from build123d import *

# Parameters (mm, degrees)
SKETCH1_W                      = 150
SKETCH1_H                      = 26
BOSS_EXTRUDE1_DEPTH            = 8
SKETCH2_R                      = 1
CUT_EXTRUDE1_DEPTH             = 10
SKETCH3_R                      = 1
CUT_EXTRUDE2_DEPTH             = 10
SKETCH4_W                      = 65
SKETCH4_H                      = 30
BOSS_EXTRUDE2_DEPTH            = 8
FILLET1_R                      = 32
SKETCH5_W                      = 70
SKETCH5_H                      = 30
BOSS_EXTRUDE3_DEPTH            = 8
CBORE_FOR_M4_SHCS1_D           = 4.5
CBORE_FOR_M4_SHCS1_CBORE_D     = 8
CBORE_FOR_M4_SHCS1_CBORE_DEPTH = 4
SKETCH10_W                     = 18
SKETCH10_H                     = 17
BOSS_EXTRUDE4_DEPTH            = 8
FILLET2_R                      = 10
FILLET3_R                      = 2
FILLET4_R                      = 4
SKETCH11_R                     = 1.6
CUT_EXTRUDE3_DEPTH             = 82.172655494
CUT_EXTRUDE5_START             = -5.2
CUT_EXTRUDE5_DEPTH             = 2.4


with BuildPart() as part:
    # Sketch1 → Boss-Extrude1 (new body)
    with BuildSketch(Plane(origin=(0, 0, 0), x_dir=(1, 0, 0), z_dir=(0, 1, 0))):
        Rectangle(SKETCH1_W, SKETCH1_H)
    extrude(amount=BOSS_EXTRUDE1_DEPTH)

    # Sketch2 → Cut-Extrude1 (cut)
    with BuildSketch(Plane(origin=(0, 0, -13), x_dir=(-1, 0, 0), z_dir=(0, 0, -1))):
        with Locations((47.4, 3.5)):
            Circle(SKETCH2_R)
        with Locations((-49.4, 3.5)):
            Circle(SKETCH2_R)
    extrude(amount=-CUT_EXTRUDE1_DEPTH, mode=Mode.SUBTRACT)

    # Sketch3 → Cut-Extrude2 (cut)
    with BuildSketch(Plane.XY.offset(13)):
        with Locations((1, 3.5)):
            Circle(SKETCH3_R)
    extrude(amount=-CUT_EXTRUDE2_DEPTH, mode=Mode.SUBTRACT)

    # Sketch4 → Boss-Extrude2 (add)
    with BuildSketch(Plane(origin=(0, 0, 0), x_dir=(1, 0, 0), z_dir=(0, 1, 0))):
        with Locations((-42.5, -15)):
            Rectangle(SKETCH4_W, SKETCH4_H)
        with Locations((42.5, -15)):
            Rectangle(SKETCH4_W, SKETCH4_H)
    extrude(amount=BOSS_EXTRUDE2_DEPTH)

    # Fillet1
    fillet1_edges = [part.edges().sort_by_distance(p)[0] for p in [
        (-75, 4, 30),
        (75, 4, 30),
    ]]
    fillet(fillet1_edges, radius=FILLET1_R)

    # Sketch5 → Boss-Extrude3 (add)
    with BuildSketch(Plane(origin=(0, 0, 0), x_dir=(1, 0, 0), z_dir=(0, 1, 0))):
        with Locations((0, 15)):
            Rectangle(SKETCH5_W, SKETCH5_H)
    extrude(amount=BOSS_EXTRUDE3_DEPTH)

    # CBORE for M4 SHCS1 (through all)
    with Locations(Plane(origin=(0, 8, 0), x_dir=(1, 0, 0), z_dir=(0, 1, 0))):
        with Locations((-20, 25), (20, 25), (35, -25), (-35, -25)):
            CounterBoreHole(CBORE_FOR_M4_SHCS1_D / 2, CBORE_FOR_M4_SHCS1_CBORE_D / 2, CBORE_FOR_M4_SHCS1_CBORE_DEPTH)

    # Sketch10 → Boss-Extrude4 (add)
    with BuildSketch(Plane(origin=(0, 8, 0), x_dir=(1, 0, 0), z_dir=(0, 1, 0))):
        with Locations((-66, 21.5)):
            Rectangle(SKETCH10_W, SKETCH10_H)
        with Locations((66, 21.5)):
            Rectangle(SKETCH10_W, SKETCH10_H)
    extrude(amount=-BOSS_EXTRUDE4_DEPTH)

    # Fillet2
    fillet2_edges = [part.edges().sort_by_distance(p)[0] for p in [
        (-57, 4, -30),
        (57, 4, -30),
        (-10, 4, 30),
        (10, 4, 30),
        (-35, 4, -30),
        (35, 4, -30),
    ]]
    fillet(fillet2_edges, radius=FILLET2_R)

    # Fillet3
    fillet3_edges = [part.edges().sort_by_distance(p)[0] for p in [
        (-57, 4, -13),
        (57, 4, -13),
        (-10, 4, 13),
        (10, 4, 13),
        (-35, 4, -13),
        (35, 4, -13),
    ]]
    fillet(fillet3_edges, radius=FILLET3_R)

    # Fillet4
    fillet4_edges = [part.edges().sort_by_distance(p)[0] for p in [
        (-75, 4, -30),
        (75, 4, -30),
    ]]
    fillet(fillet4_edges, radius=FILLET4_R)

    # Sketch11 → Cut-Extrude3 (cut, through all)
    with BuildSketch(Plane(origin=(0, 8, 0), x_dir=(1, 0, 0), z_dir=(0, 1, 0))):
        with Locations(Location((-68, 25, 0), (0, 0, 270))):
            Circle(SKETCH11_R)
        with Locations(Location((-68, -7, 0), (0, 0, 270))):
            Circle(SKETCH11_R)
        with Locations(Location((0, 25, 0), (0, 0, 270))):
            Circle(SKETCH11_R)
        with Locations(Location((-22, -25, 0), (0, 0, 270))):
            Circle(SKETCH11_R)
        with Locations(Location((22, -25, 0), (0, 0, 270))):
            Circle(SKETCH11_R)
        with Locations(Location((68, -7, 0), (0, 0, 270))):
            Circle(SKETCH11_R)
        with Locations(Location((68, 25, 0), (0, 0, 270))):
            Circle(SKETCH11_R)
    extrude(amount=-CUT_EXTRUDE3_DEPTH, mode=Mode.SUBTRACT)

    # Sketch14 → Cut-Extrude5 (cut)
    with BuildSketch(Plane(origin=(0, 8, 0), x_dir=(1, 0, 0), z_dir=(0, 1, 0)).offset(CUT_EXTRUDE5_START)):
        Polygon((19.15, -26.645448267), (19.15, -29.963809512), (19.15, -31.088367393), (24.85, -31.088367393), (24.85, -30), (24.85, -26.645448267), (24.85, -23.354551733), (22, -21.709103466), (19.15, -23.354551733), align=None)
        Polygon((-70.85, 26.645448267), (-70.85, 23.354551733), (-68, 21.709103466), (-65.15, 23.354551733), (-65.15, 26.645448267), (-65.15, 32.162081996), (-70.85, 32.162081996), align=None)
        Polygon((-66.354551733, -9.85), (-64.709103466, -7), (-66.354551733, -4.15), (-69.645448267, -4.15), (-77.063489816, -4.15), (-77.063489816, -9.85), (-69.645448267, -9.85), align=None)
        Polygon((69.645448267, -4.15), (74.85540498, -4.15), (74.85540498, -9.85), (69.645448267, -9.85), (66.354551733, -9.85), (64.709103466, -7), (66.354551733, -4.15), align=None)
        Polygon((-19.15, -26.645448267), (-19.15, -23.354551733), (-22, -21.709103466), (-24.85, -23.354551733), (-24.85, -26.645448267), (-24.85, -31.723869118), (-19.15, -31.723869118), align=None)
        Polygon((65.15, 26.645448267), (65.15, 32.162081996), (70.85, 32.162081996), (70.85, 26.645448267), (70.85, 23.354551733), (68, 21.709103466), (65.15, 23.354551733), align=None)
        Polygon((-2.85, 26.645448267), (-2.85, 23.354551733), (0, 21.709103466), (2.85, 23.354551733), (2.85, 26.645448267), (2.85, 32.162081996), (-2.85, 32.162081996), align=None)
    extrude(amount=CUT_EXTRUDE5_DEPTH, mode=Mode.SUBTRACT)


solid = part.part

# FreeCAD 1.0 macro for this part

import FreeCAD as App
import Part
import Sketcher
Q = App.Units.Quantity


def edges_at(feature, points):
    """Names of the edges that pass closest to the given points."""
    edges = feature.Shape.Edges
    near = lambda p: min(range(len(edges)), key=lambda i: edges[i].distToShape(Part.Vertex(*p))[0])
    return sorted({f"Edge{near(p) + 1}" for p in points})

doc = App.newDocument("Part")
body = doc.addObject("PartDesign::Body", "Body")

# Sketch on XZ plane
sketch1 = body.newObject("Sketcher::SketchObject", "Sketch")
sketch1.AttachmentSupport = (doc.getObject("XZ_Plane"), [""])
sketch1.MapMode = "FlatFace"
sketch1.addGeometry([
    Part.LineSegment(App.Vector(-75, -13, 0), App.Vector(-75, 13, 0)),
    Part.LineSegment(App.Vector(-75, 13, 0), App.Vector(75, 13, 0)),
    Part.LineSegment(App.Vector(75, 13, 0), App.Vector(75, -13, 0)),
    Part.LineSegment(App.Vector(75, -13, 0), App.Vector(-75, -13, 0)),
], False)
sketch1.addConstraint([
    Sketcher.Constraint("Coincident", 0, 2, 1, 1),
    Sketcher.Constraint("Coincident", 1, 2, 2, 1),
    Sketcher.Constraint("Coincident", 2, 2, 3, 1),
    Sketcher.Constraint("Coincident", 3, 2, 0, 1),
    Sketcher.Constraint("Vertical", 0),
    Sketcher.Constraint("Horizontal", 1),
    Sketcher.Constraint("Vertical", 2),
    Sketcher.Constraint("Horizontal", 3),
    Sketcher.Constraint("Symmetric", 0, 2, 2, 2, -1, 1),
    Sketcher.Constraint("DistanceX", 1, 1, 1, 2, Q("150 mm")),
    Sketcher.Constraint("DistanceY", 0, 1, 0, 2, Q("26 mm")),
])
pad1 = body.newObject("PartDesign::Pad", "Pad")
pad1.Profile = sketch1
pad1.Length = 8
pad1.Reversed = True

# Sketch on XY plane
sketch2 = body.newObject("Sketcher::SketchObject", "Sketch001")
sketch2.AttachmentSupport = (doc.getObject("XY_Plane"), [""])
sketch2.MapMode = "FlatFace"
sketch2.AttachmentOffset = App.Placement(App.Vector(0, 0, -13), App.Rotation())
sketch2.addGeometry([
    Part.Circle(App.Vector(-47.4, 3.5, 0), App.Vector(0, 0, 1), 1),
    Part.Circle(App.Vector(49.4, 3.5, 0), App.Vector(0, 0, 1), 1),
], False)
sketch2.addConstraint([
    Sketcher.Constraint("Equal", 0, 1),
    Sketcher.Constraint("Horizontal", 0, 3, 1, 3),
    Sketcher.Constraint("Diameter", 0, Q("2 mm")),
    Sketcher.Constraint("DistanceX", 0, 3, -1, 1, Q("47.4 mm")),
    Sketcher.Constraint("DistanceY", -1, 1, 0, 3, Q("3.5 mm")),
    Sketcher.Constraint("DistanceX", -1, 1, 1, 3, Q("49.4 mm")),
])
pocket1 = body.newObject("PartDesign::Pocket", "Pocket")
pocket1.Profile = sketch2
pocket1.Length = 10
pocket1.Reversed = True

# Sketch on XY plane
sketch3 = body.newObject("Sketcher::SketchObject", "Sketch002")
sketch3.AttachmentSupport = (doc.getObject("XY_Plane"), [""])
sketch3.MapMode = "FlatFace"
sketch3.AttachmentOffset = App.Placement(App.Vector(0, 0, 13), App.Rotation())
sketch3.addGeometry(Part.Circle(App.Vector(1, 3.5, 0), App.Vector(0, 0, 1), 1), False)
sketch3.addConstraint([
    Sketcher.Constraint("Diameter", 0, Q("2 mm")),
    Sketcher.Constraint("DistanceX", -1, 1, 0, 3, Q("1 mm")),
    Sketcher.Constraint("DistanceY", -1, 1, 0, 3, Q("3.5 mm")),
])
pocket2 = body.newObject("PartDesign::Pocket", "Pocket001")
pocket2.Profile = sketch3
pocket2.Length = 10

# Sketch on XZ plane
sketch4 = body.newObject("Sketcher::SketchObject", "Sketch003")
sketch4.AttachmentSupport = (doc.getObject("XZ_Plane"), [""])
sketch4.MapMode = "FlatFace"
sketch4.addGeometry([
    Part.LineSegment(App.Vector(-75, 0, 0), App.Vector(-75, 30, 0)),  # 0
    Part.LineSegment(App.Vector(-75, 30, 0), App.Vector(-10, 30, 0)),  # 1
    Part.LineSegment(App.Vector(-10, 30, 0), App.Vector(-10, 0, 0)),  # 2
    Part.LineSegment(App.Vector(-10, 0, 0), App.Vector(-75, 0, 0)),  # 3
    Part.LineSegment(App.Vector(10, 0, 0), App.Vector(10, 30, 0)),  # 4
    Part.LineSegment(App.Vector(10, 30, 0), App.Vector(75, 30, 0)),  # 5
    Part.LineSegment(App.Vector(75, 30, 0), App.Vector(75, 0, 0)),  # 6
    Part.LineSegment(App.Vector(75, 0, 0), App.Vector(10, 0, 0)),  # 7
], False)
sketch4.addConstraint([
    Sketcher.Constraint("Coincident", 0, 2, 1, 1),
    Sketcher.Constraint("Coincident", 1, 2, 2, 1),
    Sketcher.Constraint("Coincident", 2, 2, 3, 1),
    Sketcher.Constraint("Coincident", 3, 2, 0, 1),
    Sketcher.Constraint("Coincident", 4, 2, 5, 1),
    Sketcher.Constraint("Coincident", 5, 2, 6, 1),
    Sketcher.Constraint("Coincident", 6, 2, 7, 1),
    Sketcher.Constraint("Coincident", 7, 2, 4, 1),
    Sketcher.Constraint("Vertical", 0),
    Sketcher.Constraint("Horizontal", 1),
    Sketcher.Constraint("Vertical", 2),
    Sketcher.Constraint("Horizontal", 3),
    Sketcher.Constraint("Vertical", 4),
    Sketcher.Constraint("Horizontal", 5),
    Sketcher.Constraint("Vertical", 6),
    Sketcher.Constraint("Horizontal", 7),
    Sketcher.Constraint("Symmetric", 3, 2, 6, 2, -1, 1),
    Sketcher.Constraint("Symmetric", 1, 2, 4, 2, -2),
    Sketcher.Constraint("PointOnObject", 2, 2, -1),
    Sketcher.Constraint("DistanceX", 1, 1, 1, 2, Q("65 mm")),
    Sketcher.Constraint("DistanceY", 0, 1, 0, 2, Q("30 mm")),
    Sketcher.Constraint("DistanceX", 0, 2, -1, 1, Q("75 mm")),
])
pad2 = body.newObject("PartDesign::Pad", "Pad001")
pad2.Profile = sketch4
pad2.Length = 8
pad2.Reversed = True
doc.recompute()

fillet = body.newObject("PartDesign::Fillet", "Fillet")
fillet.Base = (pad2, edges_at(pad2, [(-75, 4, 30), (75, 4, 30)]))
fillet.Radius = 32

# Sketch on XZ plane
sketch5 = body.newObject("Sketcher::SketchObject", "Sketch004")
sketch5.AttachmentSupport = (doc.getObject("XZ_Plane"), [""])
sketch5.MapMode = "FlatFace"
sketch5.addGeometry([
    Part.LineSegment(App.Vector(-35, -30, 0), App.Vector(-35, 0, 0)),
    Part.LineSegment(App.Vector(-35, 0, 0), App.Vector(35, 0, 0)),
    Part.LineSegment(App.Vector(35, 0, 0), App.Vector(35, -30, 0)),
    Part.LineSegment(App.Vector(35, -30, 0), App.Vector(-35, -30, 0)),
], False)
sketch5.addConstraint([
    Sketcher.Constraint("Coincident", 0, 2, 1, 1),
    Sketcher.Constraint("Coincident", 1, 2, 2, 1),
    Sketcher.Constraint("Coincident", 2, 2, 3, 1),
    Sketcher.Constraint("Coincident", 3, 2, 0, 1),
    Sketcher.Constraint("Vertical", 0),
    Sketcher.Constraint("Horizontal", 1),
    Sketcher.Constraint("Vertical", 2),
    Sketcher.Constraint("Horizontal", 3),
    Sketcher.Constraint("Symmetric", 0, 2, 1, 2, -1, 1),
    Sketcher.Constraint("DistanceX", 1, 1, 1, 2, Q("70 mm")),
    Sketcher.Constraint("DistanceY", 0, 1, 0, 2, Q("30 mm")),
])
pad3 = body.newObject("PartDesign::Pad", "Pad002")
pad3.Profile = sketch5
pad3.Length = 8
pad3.Reversed = True

# Sketch on XZ plane
sketch6 = body.newObject("Sketcher::SketchObject", "Sketch005")
sketch6.AttachmentSupport = (doc.getObject("XZ_Plane"), [""])
sketch6.MapMode = "FlatFace"
sketch6.AttachmentOffset = App.Placement(App.Vector(0, 0, -8), App.Rotation())
sketch6.addGeometry([
    Part.Circle(App.Vector(-20, -25, 0), App.Vector(0, 0, 1), 2.25),
    Part.Circle(App.Vector(20, -25, 0), App.Vector(0, 0, 1), 2.25),
    Part.Circle(App.Vector(35, 25, 0), App.Vector(0, 0, 1), 2.25),
    Part.Circle(App.Vector(-35, 25, 0), App.Vector(0, 0, 1), 2.25),
], False)
sketch6.addConstraint([
    Sketcher.Constraint("Equal", 0, 1),
    Sketcher.Constraint("Equal", 1, 2),
    Sketcher.Constraint("Equal", 2, 3),
    Sketcher.Constraint("Symmetric", 0, 3, 1, 3, -2),
    Sketcher.Constraint("Symmetric", 2, 3, 3, 3, -2),
    Sketcher.Constraint("Diameter", 0, Q("4.5 mm")),
    Sketcher.Constraint("DistanceX", 0, 3, -1, 1, Q("20 mm")),
    Sketcher.Constraint("DistanceY", 0, 3, -1, 1, Q("25 mm")),
    Sketcher.Constraint("DistanceX", -1, 1, 2, 3, Q("35 mm")),
    Sketcher.Constraint("DistanceY", -1, 1, 2, 3, Q("25 mm")),
])
doc.recompute()
hole = body.newObject("PartDesign::Hole", "Hole")
hole.Profile = sketch6
hole.ThreadType = "None"
hole.Diameter = 4.5
hole.DepthType = "ThroughAll"
hole.HoleCutType = "Counterbore"
hole.HoleCutDiameter = 8
hole.HoleCutDepth = 4
hole.Reversed = True

# Sketch on XZ plane
sketch7 = body.newObject("Sketcher::SketchObject", "Sketch006")
sketch7.AttachmentSupport = (doc.getObject("XZ_Plane"), [""])
sketch7.MapMode = "FlatFace"
sketch7.AttachmentOffset = App.Placement(App.Vector(0, 0, -8), App.Rotation())
sketch7.addGeometry([
    Part.LineSegment(App.Vector(-75, -30, 0), App.Vector(-75, -13, 0)),  # 0
    Part.LineSegment(App.Vector(-75, -13, 0), App.Vector(-57, -13, 0)),  # 1
    Part.LineSegment(App.Vector(-57, -13, 0), App.Vector(-57, -30, 0)),  # 2
    Part.LineSegment(App.Vector(-57, -30, 0), App.Vector(-75, -30, 0)),  # 3
    Part.LineSegment(App.Vector(57, -30, 0), App.Vector(57, -13, 0)),  # 4
    Part.LineSegment(App.Vector(57, -13, 0), App.Vector(75, -13, 0)),  # 5
    Part.LineSegment(App.Vector(75, -13, 0), App.Vector(75, -30, 0)),  # 6
    Part.LineSegment(App.Vector(75, -30, 0), App.Vector(57, -30, 0)),  # 7
], False)
sketch7.addConstraint([
    Sketcher.Constraint("Coincident", 0, 2, 1, 1),
    Sketcher.Constraint("Coincident", 1, 2, 2, 1),
    Sketcher.Constraint("Coincident", 2, 2, 3, 1),
    Sketcher.Constraint("Coincident", 3, 2, 0, 1),
    Sketcher.Constraint("Coincident", 4, 2, 5, 1),
    Sketcher.Constraint("Coincident", 5, 2, 6, 1),
    Sketcher.Constraint("Coincident", 6, 2, 7, 1),
    Sketcher.Constraint("Coincident", 7, 2, 4, 1),
    Sketcher.Constraint("Vertical", 0),
    Sketcher.Constraint("Horizontal", 1),
    Sketcher.Constraint("Vertical", 2),
    Sketcher.Constraint("Horizontal", 3),
    Sketcher.Constraint("Vertical", 4),
    Sketcher.Constraint("Horizontal", 5),
    Sketcher.Constraint("Vertical", 6),
    Sketcher.Constraint("Horizontal", 7),
    Sketcher.Constraint("Symmetric", 1, 2, 4, 2, -2),
    Sketcher.Constraint("Symmetric", 3, 2, 6, 2, -2),
    Sketcher.Constraint("DistanceX", 1, 1, 1, 2, Q("18 mm")),
    Sketcher.Constraint("DistanceY", 0, 1, 0, 2, Q("17 mm")),
    Sketcher.Constraint("DistanceX", 0, 2, -1, 1, Q("75 mm")),
    Sketcher.Constraint("DistanceY", 0, 2, -1, 1, Q("13 mm")),
])
pad4 = body.newObject("PartDesign::Pad", "Pad003")
pad4.Profile = sketch7
pad4.Length = 8
doc.recompute()

fillet2 = body.newObject("PartDesign::Fillet", "Fillet001")
fillet2.Base = (pad4, edges_at(pad4, [
    (-57, 4, -30),
    (57, 4, -30),
    (-10, 4, 30),
    (10, 4, 30),
    (-35, 4, -30),
    (35, 4, -30),
]))
fillet2.Radius = 10
doc.recompute()

fillet3 = body.newObject("PartDesign::Fillet", "Fillet002")
fillet3.Base = (fillet2, edges_at(fillet2, [
    (-57, 4, -13),
    (57, 4, -13),
    (-10, 4, 13),
    (10, 4, 13),
    (-35, 4, -13),
    (35, 4, -13),
]))
fillet3.Radius = 2
doc.recompute()

fillet4 = body.newObject("PartDesign::Fillet", "Fillet003")
fillet4.Base = (fillet3, edges_at(fillet3, [(-75, 4, -30), (75, 4, -30)]))
fillet4.Radius = 4

# Sketch on XZ plane
sketch8 = body.newObject("Sketcher::SketchObject", "Sketch007")
sketch8.AttachmentSupport = (doc.getObject("XZ_Plane"), [""])
sketch8.MapMode = "FlatFace"
sketch8.AttachmentOffset = App.Placement(App.Vector(0, 0, -8), App.Rotation())
sketch8.addGeometry([
    Part.Circle(App.Vector(-68, -25, 0), App.Vector(0, 0, 1), 1.6),  # 0
    Part.Circle(App.Vector(-68, 7, 0), App.Vector(0, 0, 1), 1.6),  # 1
    Part.Circle(App.Vector(0, -25, 0), App.Vector(0, 0, 1), 1.6),  # 2
    Part.Circle(App.Vector(-22, 25, 0), App.Vector(0, 0, 1), 1.6),  # 3
    Part.Circle(App.Vector(22, 25, 0), App.Vector(0, 0, 1), 1.6),  # 4
    Part.Circle(App.Vector(68, 7, 0), App.Vector(0, 0, 1), 1.6),  # 5
    Part.Circle(App.Vector(68, -25, 0), App.Vector(0, 0, 1), 1.6),  # 6
], False)
sketch8.addConstraint([
    Sketcher.Constraint("Equal", 0, 1),
    Sketcher.Constraint("Equal", 1, 2),
    Sketcher.Constraint("Equal", 2, 3),
    Sketcher.Constraint("Equal", 3, 4),
    Sketcher.Constraint("Equal", 4, 5),
    Sketcher.Constraint("Equal", 5, 6),
    Sketcher.Constraint("Symmetric", 3, 3, 4, 3, -2),
    Sketcher.Constraint("Symmetric", 1, 3, 5, 3, -2),
    Sketcher.Constraint("Symmetric", 0, 3, 6, 3, -2),
    Sketcher.Constraint("PointOnObject", 2, 3, -2),
    Sketcher.Constraint("Horizontal", 0, 3, 2, 3),
    Sketcher.Constraint("Vertical", 0, 3, 1, 3),
    Sketcher.Constraint("Diameter", 0, Q("3.2 mm")),
    Sketcher.Constraint("DistanceX", 0, 3, -1, 1, Q("68 mm")),
    Sketcher.Constraint("DistanceY", 0, 3, -1, 1, Q("25 mm")),
    Sketcher.Constraint("DistanceY", -1, 1, 1, 3, Q("7 mm")),
    Sketcher.Constraint("DistanceX", 3, 3, -1, 1, Q("22 mm")),
    Sketcher.Constraint("DistanceY", -1, 1, 3, 3, Q("25 mm")),
])
pocket3 = body.newObject("PartDesign::Pocket", "Pocket002")
pocket3.Profile = sketch8
pocket3.Type = "ThroughAll"
pocket3.Reversed = True

# Sketch on XZ plane
sketch9 = body.newObject("Sketcher::SketchObject", "Sketch008")
sketch9.AttachmentSupport = (doc.getObject("XZ_Plane"), [""])
sketch9.MapMode = "FlatFace"
sketch9.AttachmentOffset = App.Placement(App.Vector(0, 0, -2.8), App.Rotation())
sketch9.addGeometry([
    Part.LineSegment(App.Vector(19.15, 31.088367, 0), App.Vector(24.85, 31.088367, 0)),  # 0
    Part.LineSegment(App.Vector(24.85, 31.088367, 0), App.Vector(24.85, 23.354552, 0)),  # 1
    Part.LineSegment(App.Vector(24.85, 23.354552, 0), App.Vector(22, 21.709103, 0)),  # 2
    Part.LineSegment(App.Vector(22, 21.709103, 0), App.Vector(19.15, 23.354552, 0)),  # 3
    Part.LineSegment(App.Vector(19.15, 23.354552, 0), App.Vector(19.15, 31.088367, 0)),  # 4
    Part.LineSegment(App.Vector(-70.85, -23.354552, 0), App.Vector(-68, -21.709103, 0)),  # 5
    Part.LineSegment(App.Vector(-68, -21.709103, 0), App.Vector(-65.15, -23.354552, 0)),  # 6
    Part.LineSegment(App.Vector(-65.15, -23.354552, 0), App.Vector(-65.15, -32.162082, 0)),  # 7
    Part.LineSegment(App.Vector(-65.15, -32.162082, 0), App.Vector(-70.85, -32.162082, 0)),  # 8
    Part.LineSegment(App.Vector(-70.85, -32.162082, 0), App.Vector(-70.85, -23.354552, 0)),  # 9
    Part.LineSegment(App.Vector(-66.354552, 9.85, 0), App.Vector(-64.709103, 7, 0)),  # 10
    Part.LineSegment(App.Vector(-64.709103, 7, 0), App.Vector(-66.354552, 4.15, 0)),  # 11
    Part.LineSegment(App.Vector(-66.354552, 4.15, 0), App.Vector(-77.06349, 4.15, 0)),  # 12
    Part.LineSegment(App.Vector(-77.06349, 4.15, 0), App.Vector(-77.06349, 9.85, 0)),  # 13
    Part.LineSegment(App.Vector(-77.06349, 9.85, 0), App.Vector(-66.354552, 9.85, 0)),  # 14
    Part.LineSegment(App.Vector(74.855405, 4.15, 0), App.Vector(66.354552, 4.15, 0)),  # 15
    Part.LineSegment(App.Vector(66.354552, 4.15, 0), App.Vector(64.709103, 7, 0)),  # 16
    Part.LineSegment(App.Vector(64.709103, 7, 0), App.Vector(66.354552, 9.85, 0)),  # 17
    Part.LineSegment(App.Vector(66.354552, 9.85, 0), App.Vector(74.855405, 9.85, 0)),  # 18
    Part.LineSegment(App.Vector(74.855405, 9.85, 0), App.Vector(74.855405, 4.15, 0)),  # 19
    Part.LineSegment(App.Vector(-19.15, 23.354552, 0), App.Vector(-22, 21.709103, 0)),  # 20
    Part.LineSegment(App.Vector(-22, 21.709103, 0), App.Vector(-24.85, 23.354552, 0)),  # 21
    Part.LineSegment(App.Vector(-24.85, 23.354552, 0), App.Vector(-24.85, 31.723869, 0)),  # 22
    Part.LineSegment(App.Vector(-24.85, 31.723869, 0), App.Vector(-19.15, 31.723869, 0)),  # 23
    Part.LineSegment(App.Vector(-19.15, 31.723869, 0), App.Vector(-19.15, 23.354552, 0)),  # 24
    Part.LineSegment(App.Vector(65.15, -32.162082, 0), App.Vector(65.15, -23.354552, 0)),  # 25
    Part.LineSegment(App.Vector(65.15, -23.354552, 0), App.Vector(68, -21.709103, 0)),  # 26
    Part.LineSegment(App.Vector(68, -21.709103, 0), App.Vector(70.85, -23.354552, 0)),  # 27
    Part.LineSegment(App.Vector(70.85, -23.354552, 0), App.Vector(70.85, -32.162082, 0)),  # 28
    Part.LineSegment(App.Vector(70.85, -32.162082, 0), App.Vector(65.15, -32.162082, 0)),  # 29
    Part.LineSegment(App.Vector(-2.85, -23.354552, 0), App.Vector(0, -21.709103, 0)),  # 30
    Part.LineSegment(App.Vector(0, -21.709103, 0), App.Vector(2.85, -23.354552, 0)),  # 31
    Part.LineSegment(App.Vector(2.85, -23.354552, 0), App.Vector(2.85, -32.162082, 0)),  # 32
    Part.LineSegment(App.Vector(2.85, -32.162082, 0), App.Vector(-2.85, -32.162082, 0)),  # 33
    Part.LineSegment(App.Vector(-2.85, -32.162082, 0), App.Vector(-2.85, -23.354552, 0)),  # 34
], False)
sketch9.addConstraint([
    Sketcher.Constraint("Coincident", 0, 2, 1, 1),
    Sketcher.Constraint("Coincident", 1, 2, 2, 1),
    Sketcher.Constraint("Coincident", 2, 2, 3, 1),
    Sketcher.Constraint("Coincident", 3, 2, 4, 1),
    Sketcher.Constraint("Coincident", 4, 2, 0, 1),
    Sketcher.Constraint("Coincident", 5, 2, 6, 1),
    Sketcher.Constraint("Coincident", 6, 2, 7, 1),
    Sketcher.Constraint("Coincident", 7, 2, 8, 1),
    Sketcher.Constraint("Coincident", 8, 2, 9, 1),
    Sketcher.Constraint("Coincident", 9, 2, 5, 1),
    Sketcher.Constraint("Coincident", 10, 2, 11, 1),
    Sketcher.Constraint("Coincident", 11, 2, 12, 1),
    Sketcher.Constraint("Coincident", 12, 2, 13, 1),
    Sketcher.Constraint("Coincident", 13, 2, 14, 1),
    Sketcher.Constraint("Coincident", 14, 2, 10, 1),
    Sketcher.Constraint("Coincident", 15, 2, 16, 1),
    Sketcher.Constraint("Coincident", 16, 2, 17, 1),
    Sketcher.Constraint("Coincident", 17, 2, 18, 1),
    Sketcher.Constraint("Coincident", 18, 2, 19, 1),
    Sketcher.Constraint("Coincident", 19, 2, 15, 1),
    Sketcher.Constraint("Coincident", 20, 2, 21, 1),
    Sketcher.Constraint("Coincident", 21, 2, 22, 1),
    Sketcher.Constraint("Coincident", 22, 2, 23, 1),
    Sketcher.Constraint("Coincident", 23, 2, 24, 1),
    Sketcher.Constraint("Coincident", 24, 2, 20, 1),
    Sketcher.Constraint("Coincident", 25, 2, 26, 1),
    Sketcher.Constraint("Coincident", 26, 2, 27, 1),
    Sketcher.Constraint("Coincident", 27, 2, 28, 1),
    Sketcher.Constraint("Coincident", 28, 2, 29, 1),
    Sketcher.Constraint("Coincident", 29, 2, 25, 1),
    Sketcher.Constraint("Coincident", 30, 2, 31, 1),
    Sketcher.Constraint("Coincident", 31, 2, 32, 1),
    Sketcher.Constraint("Coincident", 32, 2, 33, 1),
    Sketcher.Constraint("Coincident", 33, 2, 34, 1),
    Sketcher.Constraint("Coincident", 34, 2, 30, 1),
    Sketcher.Constraint("Horizontal", 0),
    Sketcher.Constraint("Vertical", 1),
    Sketcher.Constraint("Vertical", 4),
    Sketcher.Constraint("Vertical", 7),
    Sketcher.Constraint("Horizontal", 8),
    Sketcher.Constraint("Vertical", 9),
    Sketcher.Constraint("Horizontal", 12),
    Sketcher.Constraint("Vertical", 13),
    Sketcher.Constraint("Horizontal", 14),
    Sketcher.Constraint("Horizontal", 15),
    Sketcher.Constraint("Horizontal", 18),
    Sketcher.Constraint("Vertical", 19),
    Sketcher.Constraint("Vertical", 22),
    Sketcher.Constraint("Horizontal", 23),
    Sketcher.Constraint("Vertical", 24),
    Sketcher.Constraint("Vertical", 25),
    Sketcher.Constraint("Vertical", 28),
    Sketcher.Constraint("Horizontal", 29),
    Sketcher.Constraint("Vertical", 32),
    Sketcher.Constraint("Horizontal", 33),
    Sketcher.Constraint("Vertical", 34),
    Sketcher.Constraint("Symmetric", 11, 2, 15, 2, -2),
    Sketcher.Constraint("Symmetric", 10, 2, 16, 2, -2),
    Sketcher.Constraint("Symmetric", 14, 2, 17, 2, -2),
    Sketcher.Constraint("Symmetric", 2, 2, 20, 2, -2),
    Sketcher.Constraint("Symmetric", 1, 2, 21, 2, -2),
    Sketcher.Constraint("Symmetric", 3, 2, 24, 2, -2),
    Sketcher.Constraint("Symmetric", 6, 2, 25, 2, -2),
    Sketcher.Constraint("Symmetric", 5, 2, 26, 2, -2),
    Sketcher.Constraint("Symmetric", 9, 2, 27, 2, -2),
    Sketcher.Constraint("Symmetric", 31, 2, 34, 2, -2),
    Sketcher.Constraint("PointOnObject", 30, 2, -2),
    Sketcher.Constraint("Parallel", 2, 5),
    Sketcher.Constraint("Parallel", 3, 6),
    Sketcher.Constraint("Perpendicular", 5, 10),
    Sketcher.Constraint("Perpendicular", 6, 11),
    Sketcher.Constraint("Parallel", 10, 16),
    Sketcher.Constraint("Parallel", 26, 30),
    Sketcher.Constraint("Horizontal", 1, 2, 3, 2),
    Sketcher.Constraint("Horizontal", 6, 2, 9, 2),
    Sketcher.Constraint("Horizontal", 8, 2, 28, 2),
    Sketcher.Constraint("Horizontal", 26, 2, 30, 2),
    Sketcher.Constraint("Horizontal", 27, 2, 31, 2),
    Sketcher.Constraint("Horizontal", 29, 2, 32, 2),
    Sketcher.Constraint("Vertical", 11, 2, 14, 2),
    Sketcher.Constraint("Equal", 0, 8),
    Sketcher.Constraint("Equal", 33, 13),
    Sketcher.Constraint("Angle", 2, Q("-150 deg")),
    Sketcher.Constraint("DistanceX", 0, 1, 0, 2, Q("5.7 mm")),
    Sketcher.Constraint("DistanceX", -1, 1, 2, 2, Q("22 mm")),
    Sketcher.Constraint("DistanceX", 5, 2, -1, 1, Q("68 mm")),
    Sketcher.Constraint("DistanceY", -1, 1, 10, 2, Q("7 mm")),
    Sketcher.Constraint("DistanceX", 12, 2, 12, 1, Q("10.708938 mm")),
    Sketcher.Constraint("DistanceY", 7, 2, 7, 1, Q("8.80753 mm")),
    Sketcher.Constraint("DistanceX", 16, 2, 18, 2, Q("10.146302 mm")),
    Sketcher.Constraint("DistanceY", 4, 2, 22, 2, Q("0.635502 mm")),
    Sketcher.Constraint("DistanceY", 1, 2, 1, 1, Q("7.733816 mm")),
    Sketcher.Constraint("DistanceY", -1, 1, 1, 2, Q("23.354552 mm")),
    Sketcher.Constraint("DistanceY", 6, 2, -1, 1, Q("23.354552 mm")),
    Sketcher.Constraint("DistanceX", 11, 2, -1, 1, Q("66.354552 mm")),
])
pocket4 = body.newObject("PartDesign::Pocket", "Pocket003")
pocket4.Profile = sketch9
pocket4.Length = 2.4

doc.recompute()
